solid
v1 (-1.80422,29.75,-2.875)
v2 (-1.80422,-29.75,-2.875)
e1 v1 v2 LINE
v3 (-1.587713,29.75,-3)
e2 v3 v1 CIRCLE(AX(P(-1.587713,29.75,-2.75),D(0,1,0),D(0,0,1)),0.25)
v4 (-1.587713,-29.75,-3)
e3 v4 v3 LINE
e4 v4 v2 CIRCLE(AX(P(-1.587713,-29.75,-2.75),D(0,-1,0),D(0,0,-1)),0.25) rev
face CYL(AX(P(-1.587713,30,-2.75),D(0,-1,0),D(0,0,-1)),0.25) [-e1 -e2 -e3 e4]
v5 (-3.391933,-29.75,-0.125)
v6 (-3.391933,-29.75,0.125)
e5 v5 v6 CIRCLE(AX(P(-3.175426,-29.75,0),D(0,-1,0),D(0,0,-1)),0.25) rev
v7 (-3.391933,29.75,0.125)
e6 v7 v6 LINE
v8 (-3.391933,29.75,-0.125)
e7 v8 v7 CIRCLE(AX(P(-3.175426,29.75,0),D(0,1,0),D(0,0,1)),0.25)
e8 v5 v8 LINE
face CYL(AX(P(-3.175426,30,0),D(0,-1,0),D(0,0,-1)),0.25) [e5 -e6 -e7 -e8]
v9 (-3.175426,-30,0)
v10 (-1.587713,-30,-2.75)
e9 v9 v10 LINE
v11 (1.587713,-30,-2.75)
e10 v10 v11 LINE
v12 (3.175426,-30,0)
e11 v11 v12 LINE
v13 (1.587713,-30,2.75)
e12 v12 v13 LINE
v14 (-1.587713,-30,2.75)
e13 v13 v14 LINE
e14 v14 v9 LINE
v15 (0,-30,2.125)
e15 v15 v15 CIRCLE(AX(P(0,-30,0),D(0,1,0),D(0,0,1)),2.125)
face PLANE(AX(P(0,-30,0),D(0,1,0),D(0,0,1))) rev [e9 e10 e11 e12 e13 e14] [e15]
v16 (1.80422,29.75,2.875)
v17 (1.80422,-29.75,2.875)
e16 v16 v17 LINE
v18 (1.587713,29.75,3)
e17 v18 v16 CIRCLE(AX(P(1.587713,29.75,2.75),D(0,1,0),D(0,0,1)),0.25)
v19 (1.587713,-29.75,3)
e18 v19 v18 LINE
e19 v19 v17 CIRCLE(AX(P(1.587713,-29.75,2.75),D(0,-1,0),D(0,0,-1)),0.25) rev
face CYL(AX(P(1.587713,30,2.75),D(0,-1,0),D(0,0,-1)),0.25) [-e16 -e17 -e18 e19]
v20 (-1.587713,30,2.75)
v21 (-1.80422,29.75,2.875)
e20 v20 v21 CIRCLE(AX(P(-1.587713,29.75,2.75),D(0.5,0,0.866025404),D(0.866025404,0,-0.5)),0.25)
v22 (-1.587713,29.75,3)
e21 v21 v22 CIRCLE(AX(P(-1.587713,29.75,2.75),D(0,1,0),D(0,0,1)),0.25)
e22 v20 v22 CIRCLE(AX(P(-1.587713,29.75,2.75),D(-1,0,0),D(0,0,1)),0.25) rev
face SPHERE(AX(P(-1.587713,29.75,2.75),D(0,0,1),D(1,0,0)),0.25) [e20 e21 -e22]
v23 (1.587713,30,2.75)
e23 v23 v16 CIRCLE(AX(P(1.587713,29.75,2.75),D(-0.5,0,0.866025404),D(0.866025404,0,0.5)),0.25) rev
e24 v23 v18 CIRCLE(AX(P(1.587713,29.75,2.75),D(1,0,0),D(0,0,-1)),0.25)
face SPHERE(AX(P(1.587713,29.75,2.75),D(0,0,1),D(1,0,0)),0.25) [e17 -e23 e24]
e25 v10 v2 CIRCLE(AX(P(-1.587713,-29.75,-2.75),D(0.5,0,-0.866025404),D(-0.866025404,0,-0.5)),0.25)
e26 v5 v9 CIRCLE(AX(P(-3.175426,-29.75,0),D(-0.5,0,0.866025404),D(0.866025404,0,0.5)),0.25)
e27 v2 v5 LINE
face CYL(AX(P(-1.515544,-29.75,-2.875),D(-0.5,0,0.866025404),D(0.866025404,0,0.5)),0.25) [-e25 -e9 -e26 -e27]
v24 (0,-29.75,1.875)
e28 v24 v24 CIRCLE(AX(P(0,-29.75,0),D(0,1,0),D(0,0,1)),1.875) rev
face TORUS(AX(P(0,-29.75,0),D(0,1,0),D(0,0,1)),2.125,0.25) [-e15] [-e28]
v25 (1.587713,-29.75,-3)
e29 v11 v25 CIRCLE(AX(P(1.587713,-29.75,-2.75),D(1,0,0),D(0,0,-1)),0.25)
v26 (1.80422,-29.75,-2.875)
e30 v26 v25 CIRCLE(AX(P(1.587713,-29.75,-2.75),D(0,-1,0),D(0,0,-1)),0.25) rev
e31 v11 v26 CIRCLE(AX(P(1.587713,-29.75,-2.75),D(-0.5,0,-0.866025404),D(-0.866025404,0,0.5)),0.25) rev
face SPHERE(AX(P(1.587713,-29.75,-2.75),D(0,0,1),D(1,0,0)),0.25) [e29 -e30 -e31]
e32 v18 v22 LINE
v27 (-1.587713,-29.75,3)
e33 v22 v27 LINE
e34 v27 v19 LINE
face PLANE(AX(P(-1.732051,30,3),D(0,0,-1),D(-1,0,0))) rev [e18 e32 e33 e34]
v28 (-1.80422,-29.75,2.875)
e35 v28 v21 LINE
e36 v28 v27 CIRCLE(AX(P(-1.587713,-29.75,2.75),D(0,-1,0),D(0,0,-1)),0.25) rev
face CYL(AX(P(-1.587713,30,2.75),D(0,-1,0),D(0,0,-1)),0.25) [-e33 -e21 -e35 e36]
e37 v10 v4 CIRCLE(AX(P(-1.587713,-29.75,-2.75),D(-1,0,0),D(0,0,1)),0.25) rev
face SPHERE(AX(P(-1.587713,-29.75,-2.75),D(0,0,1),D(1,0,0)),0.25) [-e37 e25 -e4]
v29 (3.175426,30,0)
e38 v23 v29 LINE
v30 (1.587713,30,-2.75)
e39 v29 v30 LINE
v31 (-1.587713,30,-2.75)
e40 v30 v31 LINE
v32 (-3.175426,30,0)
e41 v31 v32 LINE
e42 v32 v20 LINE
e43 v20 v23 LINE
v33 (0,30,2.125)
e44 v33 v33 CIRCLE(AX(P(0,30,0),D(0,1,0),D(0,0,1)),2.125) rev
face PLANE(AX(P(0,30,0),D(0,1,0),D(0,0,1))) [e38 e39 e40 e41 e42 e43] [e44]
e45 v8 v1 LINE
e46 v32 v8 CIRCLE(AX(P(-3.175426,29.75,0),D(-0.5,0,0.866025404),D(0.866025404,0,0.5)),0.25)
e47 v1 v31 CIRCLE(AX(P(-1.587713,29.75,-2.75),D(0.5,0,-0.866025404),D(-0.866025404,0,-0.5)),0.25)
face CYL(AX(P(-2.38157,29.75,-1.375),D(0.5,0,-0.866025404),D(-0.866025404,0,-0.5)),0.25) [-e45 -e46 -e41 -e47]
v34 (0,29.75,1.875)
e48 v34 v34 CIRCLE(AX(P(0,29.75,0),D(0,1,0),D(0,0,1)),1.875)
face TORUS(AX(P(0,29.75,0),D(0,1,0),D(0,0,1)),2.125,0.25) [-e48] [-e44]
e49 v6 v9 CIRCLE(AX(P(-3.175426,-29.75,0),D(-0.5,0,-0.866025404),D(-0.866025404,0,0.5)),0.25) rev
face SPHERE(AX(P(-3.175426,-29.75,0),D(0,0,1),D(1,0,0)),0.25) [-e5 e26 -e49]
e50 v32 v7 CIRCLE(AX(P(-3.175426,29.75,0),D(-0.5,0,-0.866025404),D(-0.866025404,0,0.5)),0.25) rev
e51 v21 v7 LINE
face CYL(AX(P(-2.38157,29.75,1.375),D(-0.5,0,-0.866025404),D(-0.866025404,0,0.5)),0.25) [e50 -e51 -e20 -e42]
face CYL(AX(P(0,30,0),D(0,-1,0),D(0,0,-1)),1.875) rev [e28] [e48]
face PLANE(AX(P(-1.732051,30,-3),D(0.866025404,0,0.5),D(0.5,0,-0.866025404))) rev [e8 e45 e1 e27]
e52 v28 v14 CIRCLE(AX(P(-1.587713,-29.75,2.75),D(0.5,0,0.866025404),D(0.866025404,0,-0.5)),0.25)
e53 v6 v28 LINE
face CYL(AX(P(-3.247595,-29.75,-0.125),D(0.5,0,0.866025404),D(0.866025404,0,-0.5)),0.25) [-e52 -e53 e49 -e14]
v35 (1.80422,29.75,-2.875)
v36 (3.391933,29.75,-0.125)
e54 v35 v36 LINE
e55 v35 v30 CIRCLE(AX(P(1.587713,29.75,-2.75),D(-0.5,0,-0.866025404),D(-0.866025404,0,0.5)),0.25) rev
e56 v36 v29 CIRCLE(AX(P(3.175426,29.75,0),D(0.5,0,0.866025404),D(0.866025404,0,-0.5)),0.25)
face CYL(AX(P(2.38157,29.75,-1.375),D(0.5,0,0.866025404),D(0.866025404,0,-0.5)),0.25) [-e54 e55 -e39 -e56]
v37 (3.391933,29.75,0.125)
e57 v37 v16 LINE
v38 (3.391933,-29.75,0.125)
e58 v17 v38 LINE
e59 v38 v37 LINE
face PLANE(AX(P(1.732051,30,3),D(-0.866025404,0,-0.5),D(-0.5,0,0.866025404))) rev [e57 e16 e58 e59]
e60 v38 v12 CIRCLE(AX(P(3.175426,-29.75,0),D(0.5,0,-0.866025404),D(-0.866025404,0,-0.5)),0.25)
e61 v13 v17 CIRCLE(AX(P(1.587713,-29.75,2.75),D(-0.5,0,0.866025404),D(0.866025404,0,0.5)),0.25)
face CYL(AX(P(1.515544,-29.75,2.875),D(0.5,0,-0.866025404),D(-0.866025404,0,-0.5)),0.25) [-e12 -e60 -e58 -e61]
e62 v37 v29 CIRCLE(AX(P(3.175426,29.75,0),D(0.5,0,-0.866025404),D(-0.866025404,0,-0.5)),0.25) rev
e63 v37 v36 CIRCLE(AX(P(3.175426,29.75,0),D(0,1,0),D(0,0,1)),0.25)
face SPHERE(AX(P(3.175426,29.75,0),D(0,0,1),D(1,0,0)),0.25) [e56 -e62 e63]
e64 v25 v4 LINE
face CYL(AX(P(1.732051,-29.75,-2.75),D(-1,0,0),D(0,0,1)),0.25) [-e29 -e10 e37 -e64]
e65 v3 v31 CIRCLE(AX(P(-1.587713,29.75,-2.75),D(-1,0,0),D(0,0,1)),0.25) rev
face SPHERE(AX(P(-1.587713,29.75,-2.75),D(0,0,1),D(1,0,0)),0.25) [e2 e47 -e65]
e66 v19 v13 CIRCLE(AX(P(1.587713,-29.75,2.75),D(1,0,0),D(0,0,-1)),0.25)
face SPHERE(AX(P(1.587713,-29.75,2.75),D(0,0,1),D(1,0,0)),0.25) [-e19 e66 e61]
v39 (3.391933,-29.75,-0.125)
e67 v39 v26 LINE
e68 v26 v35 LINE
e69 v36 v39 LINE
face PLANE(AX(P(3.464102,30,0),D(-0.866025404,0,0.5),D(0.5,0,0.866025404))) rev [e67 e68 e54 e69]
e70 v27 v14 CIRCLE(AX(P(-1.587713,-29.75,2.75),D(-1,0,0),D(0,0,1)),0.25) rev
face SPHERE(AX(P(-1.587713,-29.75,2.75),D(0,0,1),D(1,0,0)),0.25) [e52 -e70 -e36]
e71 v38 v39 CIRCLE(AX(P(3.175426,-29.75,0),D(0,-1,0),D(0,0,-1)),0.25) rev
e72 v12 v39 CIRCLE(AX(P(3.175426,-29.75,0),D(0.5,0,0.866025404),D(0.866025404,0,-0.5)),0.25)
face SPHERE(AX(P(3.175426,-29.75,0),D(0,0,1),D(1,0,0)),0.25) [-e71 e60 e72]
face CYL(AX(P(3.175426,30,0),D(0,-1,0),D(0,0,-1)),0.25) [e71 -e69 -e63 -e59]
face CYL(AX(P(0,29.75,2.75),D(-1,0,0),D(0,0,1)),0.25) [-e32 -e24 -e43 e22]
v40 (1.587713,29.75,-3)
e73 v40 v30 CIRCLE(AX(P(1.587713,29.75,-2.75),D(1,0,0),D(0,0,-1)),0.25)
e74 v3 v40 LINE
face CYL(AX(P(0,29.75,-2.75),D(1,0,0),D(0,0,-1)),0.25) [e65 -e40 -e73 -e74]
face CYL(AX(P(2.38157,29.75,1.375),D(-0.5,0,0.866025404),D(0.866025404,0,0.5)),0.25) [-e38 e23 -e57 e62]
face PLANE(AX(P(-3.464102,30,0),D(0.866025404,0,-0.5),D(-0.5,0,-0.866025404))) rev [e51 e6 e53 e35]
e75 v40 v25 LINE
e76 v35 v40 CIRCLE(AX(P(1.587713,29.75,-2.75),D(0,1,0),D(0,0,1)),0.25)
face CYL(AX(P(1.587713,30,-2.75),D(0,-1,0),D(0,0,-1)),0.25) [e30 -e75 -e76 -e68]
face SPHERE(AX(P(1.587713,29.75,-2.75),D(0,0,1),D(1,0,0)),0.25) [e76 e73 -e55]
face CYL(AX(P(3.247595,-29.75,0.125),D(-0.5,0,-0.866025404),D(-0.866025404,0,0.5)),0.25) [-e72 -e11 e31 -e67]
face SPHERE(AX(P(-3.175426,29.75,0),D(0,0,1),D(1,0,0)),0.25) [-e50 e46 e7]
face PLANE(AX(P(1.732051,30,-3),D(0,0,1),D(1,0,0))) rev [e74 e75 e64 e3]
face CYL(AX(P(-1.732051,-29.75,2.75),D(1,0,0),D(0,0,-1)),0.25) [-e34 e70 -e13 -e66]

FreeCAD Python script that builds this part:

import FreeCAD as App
import Part
import Sketcher

V = App.Vector
Q = App.Units.Quantity

doc = App.newDocument("Part")
body = doc.addObject("PartDesign::Body", "Body")

sketch1 = body.newObject("Sketcher::SketchObject", "Sketch")
sketch1.AttachmentSupport = (doc.getObject("XZ_Plane"), [""])
sketch1.MapMode = "FlatFace"
sketch1.addGeometry(Part.LineSegment(V(1.7, -3, 0), V(-1.7, -3, 0)), False)
sketch1.addGeometry(Part.LineSegment(V(-1.7, -3, 0), V(-3.5, 0, 0)), False)
sketch1.addGeometry(Part.LineSegment(V(-3.5, 0, 0), V(-1.7, 3, 0)), False)
sketch1.addGeometry(Part.LineSegment(V(-1.7, 3, 0), V(1.7, 3, 0)), False)
sketch1.addGeometry(Part.LineSegment(V(1.7, 3, 0), V(3.5, 0, 0)), False)
sketch1.addGeometry(Part.LineSegment(V(3.5, 0, 0), V(1.7, -3, 0)), False)
sketch1.addGeometry(Part.Circle(V(0, 0, 0), V(0, 0, 1), 1.9), False)
sketch1.addConstraint(Sketcher.Constraint("Coincident", 0, 2, 1, 1))
sketch1.addConstraint(Sketcher.Constraint("Coincident", 1, 2, 2, 1))
sketch1.addConstraint(Sketcher.Constraint("Coincident", 2, 2, 3, 1))
sketch1.addConstraint(Sketcher.Constraint("Coincident", 3, 2, 4, 1))
sketch1.addConstraint(Sketcher.Constraint("Coincident", 4, 2, 5, 1))
sketch1.addConstraint(Sketcher.Constraint("Coincident", 5, 2, 0, 1))
sketch1.addConstraint(Sketcher.Constraint("Horizontal", 0))
sketch1.addConstraint(Sketcher.Constraint("Horizontal", 3))
sketch1.addConstraint(Sketcher.Constraint("Coincident", 6, 3, -1, 1))
sketch1.addConstraint(Sketcher.Constraint("Symmetric", 0, 2, 3, 2, -1, 1))
sketch1.addConstraint(Sketcher.Constraint("Symmetric", 1, 2, 4, 2, -1, 1))
sketch1.addConstraint(Sketcher.Constraint("PointOnObject", 1, 2, -1))
sketch1.addConstraint(Sketcher.Constraint("Parallel", 2, 5))
sketch1.addConstraint(Sketcher.Constraint("Vertical", 0, 2, 2, 2))
sketch1.addConstraint(Sketcher.Constraint("Diameter", 6, Q("3.75 mm")))
sketch1.addConstraint(Sketcher.Constraint("Angle", 1, Q("120 deg")))
sketch1.addConstraint(Sketcher.Constraint("DistanceY", 0, 2, -1, 1, Q("3 mm")))
sketch1.addConstraint(Sketcher.Constraint("DistanceX", 0, 2, 0, 1, Q("3.464102 mm")))
pad1 = body.newObject("PartDesign::Pad", "Pad")
pad1.Profile = sketch1
pad1.Length = 60
pad1.Midplane = True
doc.recompute()

fillet = body.newObject("PartDesign::Fillet", "Fillet")
fillet.Base = (pad1, ["Edge1"])
fillet.UseAllEdges = True
fillet.Radius = 0.25

doc.recompute()
